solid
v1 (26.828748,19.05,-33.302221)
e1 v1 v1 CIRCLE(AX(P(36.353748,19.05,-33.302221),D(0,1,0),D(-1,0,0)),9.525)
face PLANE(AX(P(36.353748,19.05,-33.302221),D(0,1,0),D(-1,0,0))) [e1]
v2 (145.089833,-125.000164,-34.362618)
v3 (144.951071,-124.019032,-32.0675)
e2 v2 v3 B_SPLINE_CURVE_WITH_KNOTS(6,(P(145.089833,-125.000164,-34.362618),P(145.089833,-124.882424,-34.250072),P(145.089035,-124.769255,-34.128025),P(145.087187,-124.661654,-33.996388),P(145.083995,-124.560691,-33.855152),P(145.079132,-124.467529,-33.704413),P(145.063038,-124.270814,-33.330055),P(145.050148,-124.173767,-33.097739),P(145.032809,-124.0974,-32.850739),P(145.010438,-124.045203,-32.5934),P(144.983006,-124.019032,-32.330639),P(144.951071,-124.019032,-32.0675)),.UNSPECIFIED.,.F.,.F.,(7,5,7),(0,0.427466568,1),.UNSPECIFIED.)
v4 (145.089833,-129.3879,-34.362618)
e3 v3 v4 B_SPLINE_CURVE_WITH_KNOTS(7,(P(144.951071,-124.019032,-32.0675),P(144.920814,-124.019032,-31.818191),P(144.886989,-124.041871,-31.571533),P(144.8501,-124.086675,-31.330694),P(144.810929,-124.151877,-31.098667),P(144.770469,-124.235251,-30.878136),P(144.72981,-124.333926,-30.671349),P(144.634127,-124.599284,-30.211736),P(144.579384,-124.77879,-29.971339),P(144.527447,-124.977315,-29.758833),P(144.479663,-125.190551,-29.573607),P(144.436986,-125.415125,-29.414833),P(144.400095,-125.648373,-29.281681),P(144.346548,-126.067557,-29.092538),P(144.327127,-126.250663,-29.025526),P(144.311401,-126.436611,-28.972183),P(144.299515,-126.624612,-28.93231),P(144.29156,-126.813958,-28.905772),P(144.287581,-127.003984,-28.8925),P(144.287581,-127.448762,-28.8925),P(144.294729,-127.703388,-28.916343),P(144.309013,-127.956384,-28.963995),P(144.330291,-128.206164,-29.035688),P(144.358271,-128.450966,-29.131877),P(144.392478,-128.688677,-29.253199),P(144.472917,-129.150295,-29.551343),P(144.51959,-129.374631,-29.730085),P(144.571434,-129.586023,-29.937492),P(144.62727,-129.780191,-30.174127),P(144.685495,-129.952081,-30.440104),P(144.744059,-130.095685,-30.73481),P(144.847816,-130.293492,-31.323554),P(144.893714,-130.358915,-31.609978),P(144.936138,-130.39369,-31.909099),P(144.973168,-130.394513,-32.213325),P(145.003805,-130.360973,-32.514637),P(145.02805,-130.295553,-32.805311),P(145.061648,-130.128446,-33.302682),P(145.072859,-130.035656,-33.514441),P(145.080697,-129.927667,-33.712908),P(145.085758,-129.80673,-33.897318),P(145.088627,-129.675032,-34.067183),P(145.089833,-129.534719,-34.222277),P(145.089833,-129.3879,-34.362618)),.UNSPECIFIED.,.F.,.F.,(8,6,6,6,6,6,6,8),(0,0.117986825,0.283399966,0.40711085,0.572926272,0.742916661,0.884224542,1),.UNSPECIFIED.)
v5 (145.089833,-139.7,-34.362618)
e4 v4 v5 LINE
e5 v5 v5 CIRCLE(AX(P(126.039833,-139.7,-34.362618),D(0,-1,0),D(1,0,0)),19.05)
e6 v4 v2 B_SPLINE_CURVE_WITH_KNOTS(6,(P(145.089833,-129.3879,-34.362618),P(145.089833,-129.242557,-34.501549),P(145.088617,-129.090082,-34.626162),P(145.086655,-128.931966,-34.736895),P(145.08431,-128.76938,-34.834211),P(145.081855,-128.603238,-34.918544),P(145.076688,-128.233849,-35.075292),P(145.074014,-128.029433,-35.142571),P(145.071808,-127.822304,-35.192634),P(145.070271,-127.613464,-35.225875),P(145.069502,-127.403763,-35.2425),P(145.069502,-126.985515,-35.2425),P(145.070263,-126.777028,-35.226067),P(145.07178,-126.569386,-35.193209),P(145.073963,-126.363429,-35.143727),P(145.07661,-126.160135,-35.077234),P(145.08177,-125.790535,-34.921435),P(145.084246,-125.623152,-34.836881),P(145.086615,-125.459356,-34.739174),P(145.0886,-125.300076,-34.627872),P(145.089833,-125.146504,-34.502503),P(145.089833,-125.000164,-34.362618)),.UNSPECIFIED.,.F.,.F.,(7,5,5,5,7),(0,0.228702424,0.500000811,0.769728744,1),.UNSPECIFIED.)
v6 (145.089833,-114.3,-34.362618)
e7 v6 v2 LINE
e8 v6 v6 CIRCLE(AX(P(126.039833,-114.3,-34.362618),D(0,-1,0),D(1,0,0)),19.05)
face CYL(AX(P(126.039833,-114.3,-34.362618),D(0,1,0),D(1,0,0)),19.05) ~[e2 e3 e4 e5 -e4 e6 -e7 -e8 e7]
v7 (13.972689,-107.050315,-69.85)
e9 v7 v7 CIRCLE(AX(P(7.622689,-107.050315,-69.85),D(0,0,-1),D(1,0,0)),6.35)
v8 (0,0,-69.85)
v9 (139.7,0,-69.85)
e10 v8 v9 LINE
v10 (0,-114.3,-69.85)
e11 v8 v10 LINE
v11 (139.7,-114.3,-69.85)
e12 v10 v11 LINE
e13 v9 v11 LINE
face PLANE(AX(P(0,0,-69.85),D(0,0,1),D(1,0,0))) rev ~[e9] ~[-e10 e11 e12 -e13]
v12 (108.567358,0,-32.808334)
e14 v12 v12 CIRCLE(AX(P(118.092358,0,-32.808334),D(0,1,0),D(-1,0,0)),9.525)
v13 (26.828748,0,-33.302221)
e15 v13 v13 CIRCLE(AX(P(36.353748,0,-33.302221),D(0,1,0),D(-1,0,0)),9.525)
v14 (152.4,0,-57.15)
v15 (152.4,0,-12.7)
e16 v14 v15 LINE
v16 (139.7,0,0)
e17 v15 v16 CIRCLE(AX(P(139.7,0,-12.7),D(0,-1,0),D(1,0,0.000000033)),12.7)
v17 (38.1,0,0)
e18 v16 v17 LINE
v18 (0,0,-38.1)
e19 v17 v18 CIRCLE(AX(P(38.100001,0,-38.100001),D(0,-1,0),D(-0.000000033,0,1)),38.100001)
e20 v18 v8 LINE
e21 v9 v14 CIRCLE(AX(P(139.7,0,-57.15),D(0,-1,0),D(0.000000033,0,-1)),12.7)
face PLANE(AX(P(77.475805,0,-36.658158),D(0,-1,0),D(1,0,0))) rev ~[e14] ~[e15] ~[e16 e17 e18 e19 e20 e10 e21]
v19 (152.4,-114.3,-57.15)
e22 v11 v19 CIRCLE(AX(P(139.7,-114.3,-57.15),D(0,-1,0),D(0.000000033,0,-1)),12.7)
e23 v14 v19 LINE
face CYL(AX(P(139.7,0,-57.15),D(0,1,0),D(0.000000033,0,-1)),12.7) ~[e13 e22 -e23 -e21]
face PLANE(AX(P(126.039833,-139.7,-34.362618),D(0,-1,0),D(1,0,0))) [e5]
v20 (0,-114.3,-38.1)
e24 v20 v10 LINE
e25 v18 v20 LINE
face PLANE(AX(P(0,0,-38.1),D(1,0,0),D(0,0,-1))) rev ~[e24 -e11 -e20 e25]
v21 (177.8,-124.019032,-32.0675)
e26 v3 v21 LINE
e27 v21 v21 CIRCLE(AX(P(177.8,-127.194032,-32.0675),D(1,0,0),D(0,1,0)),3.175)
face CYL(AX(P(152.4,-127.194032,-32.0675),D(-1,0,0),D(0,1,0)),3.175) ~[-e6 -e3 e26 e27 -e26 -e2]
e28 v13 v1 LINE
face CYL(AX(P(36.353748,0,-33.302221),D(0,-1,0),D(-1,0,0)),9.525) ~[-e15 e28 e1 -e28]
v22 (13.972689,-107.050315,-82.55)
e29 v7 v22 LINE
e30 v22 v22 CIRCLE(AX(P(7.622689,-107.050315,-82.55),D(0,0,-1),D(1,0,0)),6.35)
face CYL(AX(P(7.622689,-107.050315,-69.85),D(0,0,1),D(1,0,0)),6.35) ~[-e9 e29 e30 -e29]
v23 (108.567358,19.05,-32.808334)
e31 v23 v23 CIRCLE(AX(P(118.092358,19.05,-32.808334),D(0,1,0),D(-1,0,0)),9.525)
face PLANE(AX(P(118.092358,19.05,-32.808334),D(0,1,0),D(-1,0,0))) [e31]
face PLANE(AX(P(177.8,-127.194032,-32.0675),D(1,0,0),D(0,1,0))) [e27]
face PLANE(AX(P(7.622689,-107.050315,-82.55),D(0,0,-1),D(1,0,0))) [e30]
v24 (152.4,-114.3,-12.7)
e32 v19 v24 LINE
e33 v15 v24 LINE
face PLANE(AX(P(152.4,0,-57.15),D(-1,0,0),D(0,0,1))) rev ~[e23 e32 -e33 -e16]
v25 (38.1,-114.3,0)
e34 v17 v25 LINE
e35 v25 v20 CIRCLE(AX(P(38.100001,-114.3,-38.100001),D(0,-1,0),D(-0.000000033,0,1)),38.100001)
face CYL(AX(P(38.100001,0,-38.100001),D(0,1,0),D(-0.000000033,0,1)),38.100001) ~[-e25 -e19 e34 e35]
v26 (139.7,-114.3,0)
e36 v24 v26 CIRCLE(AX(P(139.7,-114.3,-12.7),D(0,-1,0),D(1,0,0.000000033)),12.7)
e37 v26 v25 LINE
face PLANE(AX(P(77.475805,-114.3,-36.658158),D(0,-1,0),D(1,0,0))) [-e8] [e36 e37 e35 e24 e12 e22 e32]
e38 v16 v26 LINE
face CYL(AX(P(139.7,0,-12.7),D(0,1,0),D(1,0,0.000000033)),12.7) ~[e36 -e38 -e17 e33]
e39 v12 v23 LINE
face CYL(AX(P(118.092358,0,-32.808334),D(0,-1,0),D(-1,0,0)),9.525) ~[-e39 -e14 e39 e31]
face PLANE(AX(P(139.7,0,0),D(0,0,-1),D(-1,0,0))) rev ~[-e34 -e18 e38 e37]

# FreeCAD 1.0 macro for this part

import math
import FreeCAD as App
import Part
import Sketcher
Q = App.Units.Quantity

doc = App.newDocument("Part")
body = doc.addObject("PartDesign::Body", "Body")

# Sketch on XZ plane
sketch1 = doc.addObject("Sketcher::SketchObject", "Sketch")
body.addObject(sketch1)
sketch1.AttachmentSupport = (doc.XZ_Plane, [""])
sketch1.MapMode = "FlatFace"
sketch1.addGeometry(Part.LineSegment(App.Vector(139.7, 0, 0), App.Vector(38.1, 0, 0)), False)
sketch1.addGeometry(Part.ArcOfCircle(Part.Circle(App.Vector(38.100001, -38.100001, 0), App.Vector(0, 0, 1), 38.100001), math.radians(90.000002), math.radians(179.999998)), False)
sketch1.addGeometry(Part.LineSegment(App.Vector(0, -38.1, 0), App.Vector(0, -69.85, 0)), False)
sketch1.addGeometry(Part.LineSegment(App.Vector(0, -69.85, 0), App.Vector(139.7, -69.85, 0)), False)
sketch1.addGeometry(Part.ArcOfCircle(Part.Circle(App.Vector(139.7, -57.15, 0), App.Vector(0, 0, 1), 12.7), math.radians(-89.999998), math.radians(-0.000002)), False)
sketch1.addGeometry(Part.LineSegment(App.Vector(152.4, -57.15, 0), App.Vector(152.4, -12.7, 0)), False)
sketch1.addGeometry(Part.ArcOfCircle(Part.Circle(App.Vector(139.7, -12.7, 0), App.Vector(0, 0, 1), 12.7), math.radians(0.000002), math.radians(89.999998)), False)
sketch1.addConstraint(Sketcher.Constraint("Tangent", 0, 2, 1, 1))
sketch1.addConstraint(Sketcher.Constraint("Tangent", 1, 2, 2, 1))
sketch1.addConstraint(Sketcher.Constraint("Coincident", 2, 2, 3, 1))
sketch1.addConstraint(Sketcher.Constraint("Tangent", 3, 2, 4, 1))
sketch1.addConstraint(Sketcher.Constraint("Tangent", 4, 2, 5, 1))
sketch1.addConstraint(Sketcher.Constraint("Tangent", 5, 2, 6, 1))
sketch1.addConstraint(Sketcher.Constraint("Tangent", 6, 2, 0, 1))
sketch1.addConstraint(Sketcher.Constraint("Horizontal", 0))
sketch1.addConstraint(Sketcher.Constraint("Vertical", 2))
sketch1.addConstraint(Sketcher.Constraint("Horizontal", 3))
sketch1.addConstraint(Sketcher.Constraint("Vertical", 5))
sketch1.addConstraint(Sketcher.Constraint("Equal", 4, 6))
sketch1.addConstraint(Sketcher.Constraint("PointOnObject", 0, 2, -1))
sketch1.addConstraint(Sketcher.Constraint("PointOnObject", 1, 2, -2))
sketch1.addConstraint(Sketcher.Constraint("Radius", 1, Q("1.5 in")))
sketch1.addConstraint(Sketcher.Constraint("Radius", 4, Q("0.5 in")))
sketch1.addConstraint(Sketcher.Constraint("DistanceX", 0, 2, 0, 1, Q("4 in")))
sketch1.addConstraint(Sketcher.Constraint("DistanceY", 2, 2, 2, 1, Q("1.25 in")))
pad1 = doc.addObject("PartDesign::Pad", "Pad")
body.addObject(pad1)
pad1.Profile = sketch1
pad1.Length = Q("4.5 in")

# Sketch on XZ plane
sketch2 = doc.addObject("Sketcher::SketchObject", "Sketch001")
body.addObject(sketch2)
sketch2.AttachmentSupport = (doc.XZ_Plane, [""])
sketch2.MapMode = "FlatFace"
sketch2.AttachmentOffset = App.Placement(App.Vector(0, 0, 4.5 * 25.4), App.Rotation())
sketch2.addGeometry(Part.Circle(App.Vector(126.039833, -34.362618, 0), App.Vector(0, 0, 1), 19.05), False)
sketch2.addConstraint(Sketcher.Constraint("Diameter", 0, Q("1.5 in")))
sketch2.addConstraint(Sketcher.Constraint("DistanceX", -1, 1, 0, 3, Q("126.039833 mm")))
sketch2.addConstraint(Sketcher.Constraint("DistanceY", 0, 3, -1, 1, Q("34.362618 mm")))
pad2 = doc.addObject("PartDesign::Pad", "Pad001")
body.addObject(pad2)
pad2.Profile = sketch2
pad2.Length = Q("1 in")

# Sketch on XY plane
sketch3 = doc.addObject("Sketcher::SketchObject", "Sketch002")
body.addObject(sketch3)
sketch3.AttachmentSupport = (doc.XY_Plane, [""])
sketch3.MapMode = "FlatFace"
sketch3.AttachmentOffset = App.Placement(App.Vector(0, 0, -2.75 * 25.4), App.Rotation())
sketch3.addGeometry(Part.Circle(App.Vector(7.622689, -107.050315, 0), App.Vector(0, 0, 1), 6.35), False)
sketch3.addConstraint(Sketcher.Constraint("Diameter", 0, Q("0.5 in")))
sketch3.addConstraint(Sketcher.Constraint("DistanceX", -1, 1, 0, 3, Q("7.622689 mm")))
sketch3.addConstraint(Sketcher.Constraint("DistanceY", 0, 3, -1, 1, Q("107.050315 mm")))
pad3 = doc.addObject("PartDesign::Pad", "Pad002")
body.addObject(pad3)
pad3.Profile = sketch3
pad3.Length = Q("0.5 in")
pad3.Reversed = True

# Sketch on YZ plane
sketch4 = doc.addObject("Sketcher::SketchObject", "Sketch003")
body.addObject(sketch4)
sketch4.AttachmentSupport = (doc.YZ_Plane, [""])
sketch4.MapMode = "FlatFace"
sketch4.AttachmentOffset = App.Placement(App.Vector(0, 0, 6 * 25.4), App.Rotation())
sketch4.addGeometry(Part.Circle(App.Vector(-127.194032, -32.0675, 0), App.Vector(0, 0, 1), 3.175), False)
sketch4.addConstraint(Sketcher.Constraint("Diameter", 0, Q("0.25 in")))
sketch4.addConstraint(Sketcher.Constraint("DistanceY", 0, 3, -1, 1, Q("1.2625 in")))
sketch4.addConstraint(Sketcher.Constraint("DistanceX", 0, 3, -1, 1, Q("127.194032 mm")))
pad4 = doc.addObject("PartDesign::Pad", "Pad003")
body.addObject(pad4)
pad4.Profile = sketch4
pad4.Length = Q("0.5 in")
pad4.Reversed = True

# Sketch on YZ plane
sketch5 = doc.addObject("Sketcher::SketchObject", "Sketch004")
body.addObject(sketch5)
sketch5.AttachmentSupport = (doc.YZ_Plane, [""])
sketch5.MapMode = "FlatFace"
sketch5.AttachmentOffset = App.Placement(App.Vector(0, 0, 6 * 25.4), App.Rotation())
sketch5.addGeometry(Part.Circle(App.Vector(-127.194032, -32.0675, 0), App.Vector(0, 0, 1), 3.175), False)
sketch5.addConstraint(Sketcher.Constraint("Diameter", 0, Q("0.25 in")))
sketch5.addConstraint(Sketcher.Constraint("DistanceY", 0, 3, -1, 1, Q("1.2625 in")))
sketch5.addConstraint(Sketcher.Constraint("DistanceX", 0, 3, -1, 1, Q("127.194032 mm")))
pad5 = doc.addObject("PartDesign::Pad", "Pad004")
body.addObject(pad5)
pad5.Profile = sketch5
pad5.Length = Q("1 in")

# Sketch on XZ plane
sketch6 = doc.addObject("Sketcher::SketchObject", "Sketch005")
body.addObject(sketch6)
sketch6.AttachmentSupport = (doc.XZ_Plane, [""])
sketch6.MapMode = "FlatFace"
sketch6.addGeometry(Part.Circle(App.Vector(118.092358, -32.808334, 0), App.Vector(0, 0, 1), 9.525), False)
sketch6.addGeometry(Part.Circle(App.Vector(36.353748, -33.302221, 0), App.Vector(0, 0, 1), 9.525), False)
sketch6.addConstraint(Sketcher.Constraint("Equal", 0, 1))
sketch6.addConstraint(Sketcher.Constraint("Diameter", 0, Q("0.75 in")))
sketch6.addConstraint(Sketcher.Constraint("DistanceX", -1, 1, 0, 3, Q("118.092358 mm")))
sketch6.addConstraint(Sketcher.Constraint("DistanceX", -1, 1, 1, 3, Q("36.353748 mm")))
sketch6.addConstraint(Sketcher.Constraint("DistanceY", 1, 3, -1, 1, Q("33.302221 mm")))
sketch6.addConstraint(Sketcher.Constraint("DistanceY", 0, 3, -1, 1, Q("32.808334 mm")))
pad6 = doc.addObject("PartDesign::Pad", "Pad005")
body.addObject(pad6)
pad6.Profile = sketch6
pad6.Length = Q("0.75 in")
pad6.Reversed = True

doc.recompute()
